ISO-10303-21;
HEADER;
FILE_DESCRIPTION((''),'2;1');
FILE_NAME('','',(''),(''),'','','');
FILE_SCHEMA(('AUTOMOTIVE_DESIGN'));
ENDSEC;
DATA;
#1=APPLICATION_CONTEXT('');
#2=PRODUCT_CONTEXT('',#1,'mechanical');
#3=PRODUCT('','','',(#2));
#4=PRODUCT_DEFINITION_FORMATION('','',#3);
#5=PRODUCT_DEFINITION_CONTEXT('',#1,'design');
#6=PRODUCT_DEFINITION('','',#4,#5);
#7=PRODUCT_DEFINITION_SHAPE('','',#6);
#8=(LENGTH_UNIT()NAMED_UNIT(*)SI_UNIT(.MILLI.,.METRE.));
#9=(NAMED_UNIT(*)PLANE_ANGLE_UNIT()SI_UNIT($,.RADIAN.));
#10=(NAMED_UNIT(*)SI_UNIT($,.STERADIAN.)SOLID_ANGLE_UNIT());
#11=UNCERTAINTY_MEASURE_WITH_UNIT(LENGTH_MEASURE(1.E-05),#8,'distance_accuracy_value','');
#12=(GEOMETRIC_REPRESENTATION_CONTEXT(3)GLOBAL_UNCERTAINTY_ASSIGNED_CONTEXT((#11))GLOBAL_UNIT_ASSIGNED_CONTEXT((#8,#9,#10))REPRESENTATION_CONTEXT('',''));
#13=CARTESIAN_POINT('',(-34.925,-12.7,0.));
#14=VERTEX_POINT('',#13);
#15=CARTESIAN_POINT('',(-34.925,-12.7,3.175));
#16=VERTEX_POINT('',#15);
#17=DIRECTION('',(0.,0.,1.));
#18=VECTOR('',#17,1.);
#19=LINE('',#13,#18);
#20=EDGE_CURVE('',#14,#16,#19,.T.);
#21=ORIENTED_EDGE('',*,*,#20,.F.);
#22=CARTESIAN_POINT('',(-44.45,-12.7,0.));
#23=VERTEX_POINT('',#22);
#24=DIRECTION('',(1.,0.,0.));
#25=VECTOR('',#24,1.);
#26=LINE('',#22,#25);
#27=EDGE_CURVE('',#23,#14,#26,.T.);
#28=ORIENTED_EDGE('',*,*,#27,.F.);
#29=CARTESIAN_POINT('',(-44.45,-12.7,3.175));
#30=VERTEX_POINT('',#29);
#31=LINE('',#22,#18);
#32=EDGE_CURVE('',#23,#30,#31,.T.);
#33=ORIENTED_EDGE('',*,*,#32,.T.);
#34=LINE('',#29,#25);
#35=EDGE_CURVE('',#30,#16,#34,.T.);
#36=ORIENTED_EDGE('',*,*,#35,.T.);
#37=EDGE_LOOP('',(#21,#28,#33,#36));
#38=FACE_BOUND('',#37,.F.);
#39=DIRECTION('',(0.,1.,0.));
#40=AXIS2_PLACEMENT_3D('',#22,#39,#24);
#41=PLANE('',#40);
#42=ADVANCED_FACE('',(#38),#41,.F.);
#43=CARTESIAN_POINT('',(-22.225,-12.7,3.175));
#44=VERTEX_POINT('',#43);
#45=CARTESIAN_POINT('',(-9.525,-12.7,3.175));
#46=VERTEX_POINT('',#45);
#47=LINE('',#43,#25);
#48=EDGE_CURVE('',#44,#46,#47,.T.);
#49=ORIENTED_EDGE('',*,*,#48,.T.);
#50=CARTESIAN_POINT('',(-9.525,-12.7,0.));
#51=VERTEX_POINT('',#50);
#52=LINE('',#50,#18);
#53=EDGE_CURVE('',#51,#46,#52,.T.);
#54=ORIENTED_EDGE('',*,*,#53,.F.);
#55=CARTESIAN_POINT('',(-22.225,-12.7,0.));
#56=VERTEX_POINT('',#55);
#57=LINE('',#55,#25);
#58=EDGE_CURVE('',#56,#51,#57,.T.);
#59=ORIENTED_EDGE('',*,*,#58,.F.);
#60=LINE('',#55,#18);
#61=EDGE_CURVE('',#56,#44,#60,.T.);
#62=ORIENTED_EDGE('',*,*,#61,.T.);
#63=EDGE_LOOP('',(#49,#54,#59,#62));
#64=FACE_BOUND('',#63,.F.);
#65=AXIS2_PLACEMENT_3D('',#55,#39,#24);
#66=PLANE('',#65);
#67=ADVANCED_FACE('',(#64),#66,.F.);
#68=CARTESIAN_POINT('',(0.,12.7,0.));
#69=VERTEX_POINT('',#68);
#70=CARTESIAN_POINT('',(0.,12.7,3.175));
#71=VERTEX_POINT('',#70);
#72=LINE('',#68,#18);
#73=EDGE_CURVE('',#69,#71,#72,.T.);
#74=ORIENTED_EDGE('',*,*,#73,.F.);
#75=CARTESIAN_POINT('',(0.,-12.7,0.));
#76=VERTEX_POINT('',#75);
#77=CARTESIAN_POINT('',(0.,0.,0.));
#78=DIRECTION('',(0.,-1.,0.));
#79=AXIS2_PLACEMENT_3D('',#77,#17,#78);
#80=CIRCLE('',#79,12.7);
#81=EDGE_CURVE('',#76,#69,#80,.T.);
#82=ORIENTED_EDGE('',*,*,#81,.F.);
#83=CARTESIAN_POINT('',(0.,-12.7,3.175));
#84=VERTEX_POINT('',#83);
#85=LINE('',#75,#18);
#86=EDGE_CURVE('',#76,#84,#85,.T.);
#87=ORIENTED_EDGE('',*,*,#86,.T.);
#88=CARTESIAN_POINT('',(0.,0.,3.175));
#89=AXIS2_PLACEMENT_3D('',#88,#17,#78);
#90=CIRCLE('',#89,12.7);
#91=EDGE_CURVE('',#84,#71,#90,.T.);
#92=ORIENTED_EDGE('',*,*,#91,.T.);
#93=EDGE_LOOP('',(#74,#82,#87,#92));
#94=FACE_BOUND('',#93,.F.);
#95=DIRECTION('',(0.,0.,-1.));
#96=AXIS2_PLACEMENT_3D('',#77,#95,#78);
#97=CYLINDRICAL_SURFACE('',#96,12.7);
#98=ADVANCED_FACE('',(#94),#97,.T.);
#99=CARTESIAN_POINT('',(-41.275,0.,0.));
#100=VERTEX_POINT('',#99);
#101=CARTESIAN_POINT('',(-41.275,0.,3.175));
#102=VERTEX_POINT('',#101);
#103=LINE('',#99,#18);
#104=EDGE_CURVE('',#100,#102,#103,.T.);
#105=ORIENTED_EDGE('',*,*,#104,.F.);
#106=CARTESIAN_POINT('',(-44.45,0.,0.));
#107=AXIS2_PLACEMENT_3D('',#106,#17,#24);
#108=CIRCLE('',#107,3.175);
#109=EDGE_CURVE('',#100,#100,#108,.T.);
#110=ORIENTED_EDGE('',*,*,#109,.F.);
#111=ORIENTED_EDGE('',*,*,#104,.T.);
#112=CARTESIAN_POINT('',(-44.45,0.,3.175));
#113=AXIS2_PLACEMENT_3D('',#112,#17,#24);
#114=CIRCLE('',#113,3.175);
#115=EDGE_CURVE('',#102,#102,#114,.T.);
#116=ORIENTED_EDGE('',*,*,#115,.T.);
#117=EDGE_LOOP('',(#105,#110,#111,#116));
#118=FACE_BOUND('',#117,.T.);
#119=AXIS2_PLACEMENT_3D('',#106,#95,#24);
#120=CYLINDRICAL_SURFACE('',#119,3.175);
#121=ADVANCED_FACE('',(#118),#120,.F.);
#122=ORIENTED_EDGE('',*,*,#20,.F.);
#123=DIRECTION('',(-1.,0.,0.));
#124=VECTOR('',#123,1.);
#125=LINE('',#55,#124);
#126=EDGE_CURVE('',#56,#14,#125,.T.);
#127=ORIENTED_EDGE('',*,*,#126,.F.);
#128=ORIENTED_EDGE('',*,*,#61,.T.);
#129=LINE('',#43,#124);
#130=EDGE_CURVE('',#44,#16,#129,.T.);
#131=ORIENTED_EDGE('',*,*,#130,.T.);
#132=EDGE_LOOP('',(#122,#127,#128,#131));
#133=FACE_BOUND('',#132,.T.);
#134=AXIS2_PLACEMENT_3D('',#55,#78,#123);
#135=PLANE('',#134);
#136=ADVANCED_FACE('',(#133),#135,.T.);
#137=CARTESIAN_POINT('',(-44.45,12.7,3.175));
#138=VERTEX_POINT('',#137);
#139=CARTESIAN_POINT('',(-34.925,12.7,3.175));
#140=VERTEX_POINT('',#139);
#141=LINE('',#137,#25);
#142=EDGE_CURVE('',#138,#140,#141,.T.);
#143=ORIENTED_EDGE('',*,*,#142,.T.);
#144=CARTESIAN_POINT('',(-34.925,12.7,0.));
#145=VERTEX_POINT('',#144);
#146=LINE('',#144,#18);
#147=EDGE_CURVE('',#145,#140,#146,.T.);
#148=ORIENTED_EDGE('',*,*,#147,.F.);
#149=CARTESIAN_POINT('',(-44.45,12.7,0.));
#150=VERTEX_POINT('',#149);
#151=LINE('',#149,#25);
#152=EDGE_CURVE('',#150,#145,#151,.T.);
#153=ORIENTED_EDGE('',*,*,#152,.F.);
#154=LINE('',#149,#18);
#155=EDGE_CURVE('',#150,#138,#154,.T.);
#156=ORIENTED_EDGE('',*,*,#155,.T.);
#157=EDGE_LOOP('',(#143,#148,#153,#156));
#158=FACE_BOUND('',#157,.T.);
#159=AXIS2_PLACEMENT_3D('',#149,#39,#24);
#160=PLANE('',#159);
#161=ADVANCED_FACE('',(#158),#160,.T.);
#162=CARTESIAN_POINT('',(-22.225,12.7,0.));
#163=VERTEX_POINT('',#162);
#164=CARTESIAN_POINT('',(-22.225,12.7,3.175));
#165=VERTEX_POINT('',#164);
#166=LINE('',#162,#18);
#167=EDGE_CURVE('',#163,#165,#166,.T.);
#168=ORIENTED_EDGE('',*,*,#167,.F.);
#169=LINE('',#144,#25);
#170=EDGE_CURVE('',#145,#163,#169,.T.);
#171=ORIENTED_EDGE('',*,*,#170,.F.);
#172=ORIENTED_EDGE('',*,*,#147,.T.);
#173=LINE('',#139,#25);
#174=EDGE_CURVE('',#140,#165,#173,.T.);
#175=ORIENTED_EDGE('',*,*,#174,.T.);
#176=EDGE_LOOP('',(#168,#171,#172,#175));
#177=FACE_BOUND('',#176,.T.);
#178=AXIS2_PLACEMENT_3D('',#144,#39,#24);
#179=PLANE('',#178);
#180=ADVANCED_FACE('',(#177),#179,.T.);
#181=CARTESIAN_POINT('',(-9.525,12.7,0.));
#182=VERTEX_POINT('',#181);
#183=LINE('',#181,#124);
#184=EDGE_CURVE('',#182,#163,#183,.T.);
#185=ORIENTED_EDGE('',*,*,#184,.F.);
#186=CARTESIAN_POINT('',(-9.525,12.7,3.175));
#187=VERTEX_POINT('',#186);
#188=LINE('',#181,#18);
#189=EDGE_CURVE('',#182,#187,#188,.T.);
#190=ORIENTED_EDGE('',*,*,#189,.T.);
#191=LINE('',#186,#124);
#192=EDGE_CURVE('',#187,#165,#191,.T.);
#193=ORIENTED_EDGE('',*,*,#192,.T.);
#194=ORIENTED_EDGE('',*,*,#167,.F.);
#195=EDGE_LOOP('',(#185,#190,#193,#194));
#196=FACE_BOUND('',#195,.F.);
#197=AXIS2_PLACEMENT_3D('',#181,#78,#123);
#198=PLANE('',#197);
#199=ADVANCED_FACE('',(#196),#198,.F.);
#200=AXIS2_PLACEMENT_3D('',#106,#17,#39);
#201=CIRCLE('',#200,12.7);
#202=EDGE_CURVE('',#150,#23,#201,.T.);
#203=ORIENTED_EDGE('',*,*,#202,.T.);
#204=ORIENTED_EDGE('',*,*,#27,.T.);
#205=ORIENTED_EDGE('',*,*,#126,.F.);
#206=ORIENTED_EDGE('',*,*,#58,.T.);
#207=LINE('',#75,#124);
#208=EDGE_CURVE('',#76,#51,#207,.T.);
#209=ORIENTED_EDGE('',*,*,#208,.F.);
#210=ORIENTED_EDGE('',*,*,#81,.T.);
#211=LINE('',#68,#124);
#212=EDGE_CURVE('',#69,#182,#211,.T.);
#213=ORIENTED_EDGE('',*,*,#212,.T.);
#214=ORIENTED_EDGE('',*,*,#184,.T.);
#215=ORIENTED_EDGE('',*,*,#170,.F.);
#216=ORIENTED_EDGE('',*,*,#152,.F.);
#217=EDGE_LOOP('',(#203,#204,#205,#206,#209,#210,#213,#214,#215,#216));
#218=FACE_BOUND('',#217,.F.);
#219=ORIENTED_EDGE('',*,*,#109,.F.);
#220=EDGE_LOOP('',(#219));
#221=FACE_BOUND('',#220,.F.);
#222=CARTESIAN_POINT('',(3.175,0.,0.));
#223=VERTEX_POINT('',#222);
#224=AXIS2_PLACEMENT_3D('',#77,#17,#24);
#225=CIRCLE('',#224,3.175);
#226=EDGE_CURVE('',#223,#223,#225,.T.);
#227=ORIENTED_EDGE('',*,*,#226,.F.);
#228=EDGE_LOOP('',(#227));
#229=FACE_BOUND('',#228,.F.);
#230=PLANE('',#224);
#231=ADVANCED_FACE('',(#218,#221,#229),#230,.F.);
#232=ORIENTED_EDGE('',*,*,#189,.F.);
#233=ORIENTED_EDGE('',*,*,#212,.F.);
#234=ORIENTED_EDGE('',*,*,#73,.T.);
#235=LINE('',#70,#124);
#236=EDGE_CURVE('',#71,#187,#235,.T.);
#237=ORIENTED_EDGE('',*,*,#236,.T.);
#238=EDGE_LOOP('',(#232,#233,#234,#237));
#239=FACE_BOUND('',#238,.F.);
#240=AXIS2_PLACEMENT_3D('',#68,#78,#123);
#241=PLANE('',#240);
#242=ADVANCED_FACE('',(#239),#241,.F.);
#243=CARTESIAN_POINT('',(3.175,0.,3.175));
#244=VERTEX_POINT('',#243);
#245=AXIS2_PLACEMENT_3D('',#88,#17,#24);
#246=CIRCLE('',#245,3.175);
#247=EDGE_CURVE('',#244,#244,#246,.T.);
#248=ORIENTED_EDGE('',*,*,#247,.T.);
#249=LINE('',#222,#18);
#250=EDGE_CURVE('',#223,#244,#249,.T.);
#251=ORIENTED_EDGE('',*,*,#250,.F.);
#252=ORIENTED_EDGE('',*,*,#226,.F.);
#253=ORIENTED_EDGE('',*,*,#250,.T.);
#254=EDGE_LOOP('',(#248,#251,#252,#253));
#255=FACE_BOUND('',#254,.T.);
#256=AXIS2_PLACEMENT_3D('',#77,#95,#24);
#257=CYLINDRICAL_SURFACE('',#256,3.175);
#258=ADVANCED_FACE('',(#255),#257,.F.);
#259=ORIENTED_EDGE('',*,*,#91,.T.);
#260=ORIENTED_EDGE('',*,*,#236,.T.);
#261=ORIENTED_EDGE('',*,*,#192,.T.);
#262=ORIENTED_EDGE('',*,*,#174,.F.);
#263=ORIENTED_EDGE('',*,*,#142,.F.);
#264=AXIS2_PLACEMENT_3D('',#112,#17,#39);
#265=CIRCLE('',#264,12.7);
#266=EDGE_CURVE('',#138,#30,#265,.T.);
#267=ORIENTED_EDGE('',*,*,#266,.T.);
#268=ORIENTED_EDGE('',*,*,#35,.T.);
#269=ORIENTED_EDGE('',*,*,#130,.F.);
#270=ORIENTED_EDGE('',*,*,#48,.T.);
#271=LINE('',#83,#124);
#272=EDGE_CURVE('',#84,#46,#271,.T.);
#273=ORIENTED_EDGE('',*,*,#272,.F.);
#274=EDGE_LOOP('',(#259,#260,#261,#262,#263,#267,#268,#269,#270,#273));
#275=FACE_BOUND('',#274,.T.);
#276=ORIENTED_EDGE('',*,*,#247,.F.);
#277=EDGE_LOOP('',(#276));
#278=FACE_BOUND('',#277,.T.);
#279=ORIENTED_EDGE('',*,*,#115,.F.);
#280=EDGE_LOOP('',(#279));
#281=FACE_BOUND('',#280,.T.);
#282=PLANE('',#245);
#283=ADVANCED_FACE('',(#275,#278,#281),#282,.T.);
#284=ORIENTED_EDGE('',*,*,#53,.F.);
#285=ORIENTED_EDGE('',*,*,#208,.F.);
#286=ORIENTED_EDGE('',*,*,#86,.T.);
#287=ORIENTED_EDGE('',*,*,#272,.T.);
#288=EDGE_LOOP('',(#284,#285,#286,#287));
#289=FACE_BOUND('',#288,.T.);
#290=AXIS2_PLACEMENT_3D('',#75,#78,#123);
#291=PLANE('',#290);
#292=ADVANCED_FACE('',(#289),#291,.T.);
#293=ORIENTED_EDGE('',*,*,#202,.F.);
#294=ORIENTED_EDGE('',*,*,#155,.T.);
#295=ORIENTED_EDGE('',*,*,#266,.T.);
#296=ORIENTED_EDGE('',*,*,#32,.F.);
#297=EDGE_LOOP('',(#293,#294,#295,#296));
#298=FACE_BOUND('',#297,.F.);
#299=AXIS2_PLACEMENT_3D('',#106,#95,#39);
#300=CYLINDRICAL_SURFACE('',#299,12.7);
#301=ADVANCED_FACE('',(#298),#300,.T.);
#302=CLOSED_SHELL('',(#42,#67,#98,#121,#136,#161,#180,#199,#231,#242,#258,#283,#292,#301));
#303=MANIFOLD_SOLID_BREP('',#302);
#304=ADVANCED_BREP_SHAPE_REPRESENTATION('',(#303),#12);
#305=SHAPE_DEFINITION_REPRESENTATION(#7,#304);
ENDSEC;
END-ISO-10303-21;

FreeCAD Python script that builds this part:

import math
import FreeCAD as App
import Part
import Sketcher
Q = App.Units.Quantity

doc = App.newDocument("Part")
body = doc.addObject("PartDesign::Body", "Body")

# Sketch on XY plane
sketch1 = doc.addObject("Sketcher::SketchObject", "Sketch")
body.addObject(sketch1)
sketch1.AttachmentSupport = (doc.XY_Plane, [""])
sketch1.MapMode = "FlatFace"
sketch1.addGeometry(Part.LineSegment(App.Vector(-44.5, -12.7, 0), App.Vector(0, -12.7, 0)), False)
sketch1.addGeometry(Part.ArcOfCircle(Part.Circle(App.Vector(0, 0, 0), App.Vector(0, 0, 1), 12.7), math.radians(-90), math.radians(90)), False)
sketch1.addGeometry(Part.LineSegment(App.Vector(0, 12.7, 0), App.Vector(-44.5, 12.7, 0)), False)
sketch1.addGeometry(Part.ArcOfCircle(Part.Circle(App.Vector(-44.5, 0, 0), App.Vector(0, 0, 1), 12.7), math.radians(90), math.radians(270)), False)
sketch1.addGeometry(Part.Circle(App.Vector(-44.5, 0, 0), App.Vector(0, 0, 1), 3.2), False)
sketch1.addGeometry(Part.Circle(App.Vector(0, 0, 0), App.Vector(0, 0, 1), 3.2), False)
sketch1.addConstraint(Sketcher.Constraint("Tangent", 0, 2, 1, 1))
sketch1.addConstraint(Sketcher.Constraint("Tangent", 1, 2, 2, 1))
sketch1.addConstraint(Sketcher.Constraint("Tangent", 2, 2, 3, 1))
sketch1.addConstraint(Sketcher.Constraint("Tangent", 3, 2, 0, 1))
sketch1.addConstraint(Sketcher.Constraint("Horizontal", 0))
sketch1.addConstraint(Sketcher.Constraint("Horizontal", 2))
sketch1.addConstraint(Sketcher.Constraint("Coincident", 1, 3, -1, 1))
sketch1.addConstraint(Sketcher.Constraint("Coincident", 5, 3, -1, 1))
sketch1.addConstraint(Sketcher.Constraint("Coincident", 4, 3, 3, 3))
sketch1.addConstraint(Sketcher.Constraint("Equal", 4, 5))
sketch1.addConstraint(Sketcher.Constraint("Radius", 1, Q("0.5 in")))
sketch1.addConstraint(Sketcher.Constraint("Diameter", 4, Q("0.25 in")))
sketch1.addConstraint(Sketcher.Constraint("DistanceX", 0, 1, 0, 2, Q("1.75 in")))
pad1 = doc.addObject("PartDesign::Pad", "Pad")
body.addObject(pad1)
pad1.Profile = sketch1
pad1.Length = Q("0.125 in")

doc.recompute()
